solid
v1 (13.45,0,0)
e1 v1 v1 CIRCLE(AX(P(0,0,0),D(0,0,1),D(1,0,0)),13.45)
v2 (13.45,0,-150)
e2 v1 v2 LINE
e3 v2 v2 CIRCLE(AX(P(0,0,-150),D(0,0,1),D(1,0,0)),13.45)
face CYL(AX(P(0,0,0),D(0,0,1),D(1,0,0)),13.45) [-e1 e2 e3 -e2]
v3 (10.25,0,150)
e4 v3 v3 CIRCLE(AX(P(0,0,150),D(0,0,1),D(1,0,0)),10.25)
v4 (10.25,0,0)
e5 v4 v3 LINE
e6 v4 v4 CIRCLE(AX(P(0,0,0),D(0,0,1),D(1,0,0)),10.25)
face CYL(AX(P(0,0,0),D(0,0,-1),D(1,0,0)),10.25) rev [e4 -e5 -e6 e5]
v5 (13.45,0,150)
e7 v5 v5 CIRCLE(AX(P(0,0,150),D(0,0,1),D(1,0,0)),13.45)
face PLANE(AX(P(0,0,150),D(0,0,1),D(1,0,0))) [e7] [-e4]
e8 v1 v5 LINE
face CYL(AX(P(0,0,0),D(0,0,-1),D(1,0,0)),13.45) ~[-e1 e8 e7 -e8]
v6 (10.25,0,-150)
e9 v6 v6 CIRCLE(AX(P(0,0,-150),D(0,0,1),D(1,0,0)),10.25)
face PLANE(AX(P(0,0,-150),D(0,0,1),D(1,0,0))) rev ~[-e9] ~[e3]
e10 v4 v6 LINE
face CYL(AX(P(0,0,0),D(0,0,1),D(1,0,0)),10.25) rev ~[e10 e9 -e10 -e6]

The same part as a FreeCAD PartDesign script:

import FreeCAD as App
import Part
import Sketcher
Q = App.Units.Quantity

doc = App.newDocument("Part")
body = doc.addObject("PartDesign::Body", "Body")

# Sketch on XY plane
sketch1 = doc.addObject("Sketcher::SketchObject", "Sketch")
body.addObject(sketch1)
sketch1.AttachmentSupport = (doc.XY_Plane, [""])
sketch1.MapMode = "FlatFace"
sketch1.addGeometry([
    Part.Circle(App.Vector(0, 0, 0), App.Vector(0, 0, 1), 13),
    Part.Circle(App.Vector(0, 0, 0), App.Vector(0, 0, 1), 10),
], False)
sketch1.addConstraint([
    Sketcher.Constraint("Coincident", 0, 3, -1, 1),
    Sketcher.Constraint("Coincident", 1, 3, -1, 1),
    Sketcher.Constraint("Diameter", 0, Q("26.9 mm")),
    Sketcher.Constraint("Diameter", 1, Q("20.5 mm")),
])
pad1 = doc.addObject("PartDesign::Pad", "Pad")
body.addObject(pad1)
pad1.Profile = sketch1
pad1.Length = 300
pad1.Midplane = True

doc.recompute()
